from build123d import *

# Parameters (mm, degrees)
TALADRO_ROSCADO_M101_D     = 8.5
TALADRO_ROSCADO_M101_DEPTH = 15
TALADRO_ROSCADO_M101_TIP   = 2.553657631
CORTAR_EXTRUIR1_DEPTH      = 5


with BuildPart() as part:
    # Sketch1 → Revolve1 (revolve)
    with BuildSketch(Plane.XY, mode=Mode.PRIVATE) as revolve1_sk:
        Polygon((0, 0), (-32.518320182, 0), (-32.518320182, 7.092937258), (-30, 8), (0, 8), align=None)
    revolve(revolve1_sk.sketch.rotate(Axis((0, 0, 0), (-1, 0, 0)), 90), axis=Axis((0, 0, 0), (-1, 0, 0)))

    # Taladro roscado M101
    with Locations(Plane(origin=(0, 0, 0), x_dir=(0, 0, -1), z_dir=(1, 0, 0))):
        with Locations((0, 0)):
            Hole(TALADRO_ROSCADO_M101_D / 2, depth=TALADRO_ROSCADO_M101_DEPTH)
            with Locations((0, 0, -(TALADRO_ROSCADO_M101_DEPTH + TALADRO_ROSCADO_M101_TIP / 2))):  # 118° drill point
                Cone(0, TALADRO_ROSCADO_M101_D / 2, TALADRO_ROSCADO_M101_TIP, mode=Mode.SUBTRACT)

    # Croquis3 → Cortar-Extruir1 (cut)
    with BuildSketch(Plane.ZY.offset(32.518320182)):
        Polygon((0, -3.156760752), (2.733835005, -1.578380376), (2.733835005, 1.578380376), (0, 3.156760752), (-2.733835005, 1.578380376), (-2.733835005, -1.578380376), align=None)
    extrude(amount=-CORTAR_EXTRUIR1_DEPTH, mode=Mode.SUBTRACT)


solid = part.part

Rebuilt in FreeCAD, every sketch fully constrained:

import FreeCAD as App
import Part
import Sketcher
Q = App.Units.Quantity


def add_polygon(sketch, points):
    """Adds a closed chain of lines whose ends are joined by coincident constraints."""
    first, n = sketch.GeometryCount, len(points)
    for a, b in zip(points, points[1:] + points[:1]):
        sketch.addGeometry(Part.LineSegment(App.Vector(*a, 0), App.Vector(*b, 0)), False)
    for i in range(n):
        sketch.addConstraint(Sketcher.Constraint("Coincident", first + i, 2, first + (i + 1) % n, 1))

doc = App.newDocument("Part")
body = doc.addObject("PartDesign::Body", "Body")

# Sketch on XY plane
sketch1 = body.newObject("Sketcher::SketchObject", "Sketch")
sketch1.AttachmentSupport = (doc.getObject("XY_Plane"), [""])
sketch1.MapMode = "FlatFace"
add_polygon(sketch1, [(-32.5, 0), (0, 0), (0, 8), (-30, 8), (-32.5, 7.1)])  # lines 0-4
sketch1.addConstraint([
    Sketcher.Constraint("Horizontal", 0),
    Sketcher.Constraint("Vertical", 1),
    Sketcher.Constraint("Horizontal", 2),
    Sketcher.Constraint("Vertical", 4),
    Sketcher.Constraint("Coincident", 0, 2, -1, 1),
    Sketcher.Constraint("DistanceX", 2, 2, 2, 1, Q("30 mm")),
    Sketcher.Constraint("DistanceY", 1, 1, 1, 2, Q("8 mm")),
    Sketcher.Constraint("DistanceX", 0, 1, 0, 2, Q("32.51832 mm")),
    Sketcher.Constraint("DistanceY", 4, 2, 4, 1, Q("7.092937 mm")),
])
revolution = body.newObject("PartDesign::Revolution", "Revolution")
revolution.Profile = sketch1
revolution.ReferenceAxis = (sketch1, ["H_Axis"])
revolution.Angle = 360

# Sketch on YZ plane
sketch2 = body.newObject("Sketcher::SketchObject", "Sketch001")
sketch2.AttachmentSupport = (doc.getObject("YZ_Plane"), [""])
sketch2.MapMode = "FlatFace"
sketch2.addGeometry(Part.Circle(App.Vector(0, 0, 0), App.Vector(0, 0, 1), 4.2), False)
sketch2.addConstraint([
    Sketcher.Constraint("Coincident", 0, 3, -1, 1),
    Sketcher.Constraint("Diameter", 0, Q("8.5 mm")),
])
doc.recompute()
hole = body.newObject("PartDesign::Hole", "Hole")
hole.Profile = sketch2
hole.ThreadType = "None"
hole.Diameter = 8.5
hole.DepthType = "Dimension"
hole.Depth = 15
hole.DrillPoint = "Angled"
hole.DrillPointAngle = 118

# Sketch on YZ plane
sketch3 = body.newObject("Sketcher::SketchObject", "Sketch002")
sketch3.AttachmentSupport = (doc.getObject("YZ_Plane"), [""])
sketch3.MapMode = "FlatFace"
sketch3.AttachmentOffset = App.Placement(App.Vector(0, 0, -32.51832), App.Rotation())
add_polygon(sketch3, [(-3.2, 0), (-1.6, 2.7), (1.6, 2.7), (3.2, 0), (1.6, -2.7), (-1.6, -2.7)])  # lines 0-5
sketch3.addConstraint([
    Sketcher.Constraint("Horizontal", 1),
    Sketcher.Constraint("Horizontal", 4),
    Sketcher.Constraint("Symmetric", 0, 2, 3, 2, -1, 1),
    Sketcher.Constraint("Symmetric", 2, 2, 5, 2, -1, 1),
    Sketcher.Constraint("PointOnObject", 2, 2, -1),
    Sketcher.Constraint("Parallel", 2, 5),
    Sketcher.Constraint("Vertical", 1, 2, 3, 2),
    Sketcher.Constraint("Angle", 0, Q("60 deg")),
    Sketcher.Constraint("DistanceX", 1, 1, 1, 2, Q("3.156761 mm")),
    Sketcher.Constraint("Distance", 0, Q("3.156761 mm")),
])
pocket1 = body.newObject("PartDesign::Pocket", "Pocket")
pocket1.Profile = sketch3
pocket1.Length = 5
pocket1.Reversed = True

doc.recompute()
